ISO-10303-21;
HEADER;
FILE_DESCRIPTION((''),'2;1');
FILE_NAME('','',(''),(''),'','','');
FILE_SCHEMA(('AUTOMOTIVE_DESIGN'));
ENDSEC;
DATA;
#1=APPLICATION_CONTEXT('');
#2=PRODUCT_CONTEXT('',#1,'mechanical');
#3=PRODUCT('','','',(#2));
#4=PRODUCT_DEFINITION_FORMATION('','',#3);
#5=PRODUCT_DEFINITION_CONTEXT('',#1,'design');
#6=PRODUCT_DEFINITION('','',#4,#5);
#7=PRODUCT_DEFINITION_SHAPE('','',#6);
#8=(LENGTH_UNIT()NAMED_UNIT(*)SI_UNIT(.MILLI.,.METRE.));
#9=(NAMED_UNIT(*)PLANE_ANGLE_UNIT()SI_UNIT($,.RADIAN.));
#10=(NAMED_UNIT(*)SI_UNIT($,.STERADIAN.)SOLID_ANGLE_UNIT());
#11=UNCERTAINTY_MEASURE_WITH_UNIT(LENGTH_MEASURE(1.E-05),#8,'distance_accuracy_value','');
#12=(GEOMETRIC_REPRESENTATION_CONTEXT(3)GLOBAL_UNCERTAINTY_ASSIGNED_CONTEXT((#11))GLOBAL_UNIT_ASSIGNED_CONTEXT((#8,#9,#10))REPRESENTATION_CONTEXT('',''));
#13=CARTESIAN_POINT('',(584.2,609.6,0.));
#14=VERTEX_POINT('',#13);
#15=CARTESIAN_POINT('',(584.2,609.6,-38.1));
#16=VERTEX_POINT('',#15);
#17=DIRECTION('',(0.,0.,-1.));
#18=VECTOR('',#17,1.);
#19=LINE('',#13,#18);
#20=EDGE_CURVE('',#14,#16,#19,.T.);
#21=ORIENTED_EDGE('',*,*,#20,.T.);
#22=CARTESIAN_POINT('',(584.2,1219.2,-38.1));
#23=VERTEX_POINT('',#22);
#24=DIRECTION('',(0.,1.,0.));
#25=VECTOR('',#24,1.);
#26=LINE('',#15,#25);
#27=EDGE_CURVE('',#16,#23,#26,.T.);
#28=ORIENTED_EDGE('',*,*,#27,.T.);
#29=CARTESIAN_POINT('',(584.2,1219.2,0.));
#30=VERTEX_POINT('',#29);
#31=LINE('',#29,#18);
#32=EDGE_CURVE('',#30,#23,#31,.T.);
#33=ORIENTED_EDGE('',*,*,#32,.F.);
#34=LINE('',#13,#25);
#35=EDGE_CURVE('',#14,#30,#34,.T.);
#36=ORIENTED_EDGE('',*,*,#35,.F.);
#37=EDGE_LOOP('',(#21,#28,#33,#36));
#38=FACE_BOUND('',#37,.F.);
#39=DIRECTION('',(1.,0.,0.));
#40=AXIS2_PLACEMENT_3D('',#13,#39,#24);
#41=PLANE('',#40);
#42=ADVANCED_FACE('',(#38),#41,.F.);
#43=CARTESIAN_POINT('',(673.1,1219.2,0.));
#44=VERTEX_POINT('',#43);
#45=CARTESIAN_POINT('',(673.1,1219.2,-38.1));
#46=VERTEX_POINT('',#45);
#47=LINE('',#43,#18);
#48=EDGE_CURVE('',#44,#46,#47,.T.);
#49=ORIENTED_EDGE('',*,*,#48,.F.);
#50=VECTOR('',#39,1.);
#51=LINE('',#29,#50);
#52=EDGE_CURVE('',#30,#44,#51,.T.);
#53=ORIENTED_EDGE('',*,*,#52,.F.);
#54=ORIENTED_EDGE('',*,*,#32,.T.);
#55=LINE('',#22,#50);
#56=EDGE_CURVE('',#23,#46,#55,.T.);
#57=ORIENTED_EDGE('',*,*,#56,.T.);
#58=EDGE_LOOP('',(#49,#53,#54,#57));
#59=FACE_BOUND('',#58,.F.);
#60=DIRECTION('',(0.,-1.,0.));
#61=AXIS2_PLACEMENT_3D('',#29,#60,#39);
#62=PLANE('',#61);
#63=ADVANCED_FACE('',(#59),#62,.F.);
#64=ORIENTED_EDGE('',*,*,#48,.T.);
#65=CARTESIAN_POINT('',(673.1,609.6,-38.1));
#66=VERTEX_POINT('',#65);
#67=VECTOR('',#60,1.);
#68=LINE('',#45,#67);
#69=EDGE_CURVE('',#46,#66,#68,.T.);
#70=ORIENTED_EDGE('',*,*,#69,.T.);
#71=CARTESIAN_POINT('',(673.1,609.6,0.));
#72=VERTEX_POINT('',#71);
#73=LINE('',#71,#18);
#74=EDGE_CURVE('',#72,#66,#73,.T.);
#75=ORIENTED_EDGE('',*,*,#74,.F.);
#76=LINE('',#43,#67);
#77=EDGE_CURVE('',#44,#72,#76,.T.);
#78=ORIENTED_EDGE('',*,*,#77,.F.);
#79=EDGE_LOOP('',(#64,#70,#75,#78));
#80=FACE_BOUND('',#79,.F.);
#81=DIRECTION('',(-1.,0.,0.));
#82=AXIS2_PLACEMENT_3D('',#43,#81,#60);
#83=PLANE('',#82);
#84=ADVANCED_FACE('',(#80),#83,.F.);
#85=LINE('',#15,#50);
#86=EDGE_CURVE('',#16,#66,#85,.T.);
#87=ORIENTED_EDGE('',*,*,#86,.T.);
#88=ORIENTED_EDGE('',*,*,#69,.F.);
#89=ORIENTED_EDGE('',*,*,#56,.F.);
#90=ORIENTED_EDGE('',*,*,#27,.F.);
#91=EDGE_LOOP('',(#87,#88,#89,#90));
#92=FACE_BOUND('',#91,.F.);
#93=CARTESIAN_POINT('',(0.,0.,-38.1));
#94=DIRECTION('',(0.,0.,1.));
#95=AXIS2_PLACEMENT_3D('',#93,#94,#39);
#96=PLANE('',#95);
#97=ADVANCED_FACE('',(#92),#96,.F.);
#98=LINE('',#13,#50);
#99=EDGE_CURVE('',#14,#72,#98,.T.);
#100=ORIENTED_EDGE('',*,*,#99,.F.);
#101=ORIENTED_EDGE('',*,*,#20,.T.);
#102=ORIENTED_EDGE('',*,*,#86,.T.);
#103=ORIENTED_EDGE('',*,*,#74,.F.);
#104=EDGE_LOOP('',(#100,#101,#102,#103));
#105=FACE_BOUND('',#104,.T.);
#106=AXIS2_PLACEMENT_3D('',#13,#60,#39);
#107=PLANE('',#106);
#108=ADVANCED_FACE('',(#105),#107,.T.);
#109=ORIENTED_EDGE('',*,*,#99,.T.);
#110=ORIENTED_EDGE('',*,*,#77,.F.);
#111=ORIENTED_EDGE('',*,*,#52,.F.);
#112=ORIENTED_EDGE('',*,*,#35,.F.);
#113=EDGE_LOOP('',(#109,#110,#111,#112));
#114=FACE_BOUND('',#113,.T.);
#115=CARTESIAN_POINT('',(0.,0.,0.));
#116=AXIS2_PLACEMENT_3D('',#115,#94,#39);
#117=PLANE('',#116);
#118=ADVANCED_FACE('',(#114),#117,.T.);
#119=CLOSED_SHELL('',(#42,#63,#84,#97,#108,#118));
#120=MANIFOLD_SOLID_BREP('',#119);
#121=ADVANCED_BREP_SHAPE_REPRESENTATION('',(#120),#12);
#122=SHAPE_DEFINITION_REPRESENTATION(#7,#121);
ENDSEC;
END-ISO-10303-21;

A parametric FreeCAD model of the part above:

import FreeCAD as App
import Part
import Sketcher
Q = App.Units.Quantity


def add_polygon(sketch, points):
    """Adds a closed chain of lines whose ends are joined by coincident constraints."""
    first, n = sketch.GeometryCount, len(points)
    for a, b in zip(points, points[1:] + points[:1]):
        sketch.addGeometry(Part.LineSegment(App.Vector(*a, 0), App.Vector(*b, 0)), False)
    for i in range(n):
        sketch.addConstraint(Sketcher.Constraint("Coincident", first + i, 2, first + (i + 1) % n, 1))

doc = App.newDocument("Part")
body = doc.addObject("PartDesign::Body", "Body")

# Sketch on XY plane
sketch1 = body.newObject("Sketcher::SketchObject", "Sketch")
sketch1.AttachmentSupport = (doc.getObject("XY_Plane"), [""])
sketch1.MapMode = "FlatFace"
add_polygon(sketch1, [(673.1, 1219.2), (584.2, 1219.2), (584.2, 609.6), (673.1, 609.6)])  # lines 0-3
sketch1.addConstraint([
    Sketcher.Constraint("Horizontal", 0),
    Sketcher.Constraint("Vertical", 1),
    Sketcher.Constraint("Horizontal", 2),
    Sketcher.Constraint("Vertical", 3),
    Sketcher.Constraint("DistanceY", 1, 2, 1, 1, Q("24 in")),
    Sketcher.Constraint("DistanceX", 0, 2, 0, 1, Q("3.5 in")),
    Sketcher.Constraint("DistanceX", -1, 1, 0, 2, Q("23 in")),
    Sketcher.Constraint("DistanceY", -1, 1, 0, 2, Q("48 in")),
])
pad1 = body.newObject("PartDesign::Pad", "Pad")
pad1.Profile = sketch1
pad1.Length = Q("1.5 in")
pad1.Reversed = True

doc.recompute()
